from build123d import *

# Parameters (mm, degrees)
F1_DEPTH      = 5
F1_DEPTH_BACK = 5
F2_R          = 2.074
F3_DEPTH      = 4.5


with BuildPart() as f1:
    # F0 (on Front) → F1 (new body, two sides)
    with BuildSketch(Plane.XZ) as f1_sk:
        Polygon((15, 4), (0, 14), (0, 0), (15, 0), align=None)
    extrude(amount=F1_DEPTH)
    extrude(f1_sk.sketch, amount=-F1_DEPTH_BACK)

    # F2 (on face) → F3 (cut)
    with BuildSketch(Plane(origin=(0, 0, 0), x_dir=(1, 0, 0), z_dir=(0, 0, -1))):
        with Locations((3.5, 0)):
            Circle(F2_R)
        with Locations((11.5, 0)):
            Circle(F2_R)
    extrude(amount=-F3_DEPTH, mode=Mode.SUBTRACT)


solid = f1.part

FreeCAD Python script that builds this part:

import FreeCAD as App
import Part
import Sketcher
Q = App.Units.Quantity


def add_polygon(sketch, points):
    """Adds a closed chain of lines whose ends are joined by coincident constraints."""
    first, n = sketch.GeometryCount, len(points)
    for a, b in zip(points, points[1:] + points[:1]):
        sketch.addGeometry(Part.LineSegment(App.Vector(*a, 0), App.Vector(*b, 0)), False)
    for i in range(n):
        sketch.addConstraint(Sketcher.Constraint("Coincident", first + i, 2, first + (i + 1) % n, 1))

doc = App.newDocument("Part")
params = doc.addObject("Spreadsheet::Sheet", "Params")
for row, (alias, value) in enumerate([
    ("sketch1_width", "15 mm"),
    ("sketch1_height", "14 mm"),
    ("sketch1_height2", "4 mm"),
    ("pad1_length", "5 mm"),
    ("pad1_length2", "5 mm"),
    ("pocket1_length", "4.5 mm"),
], start=1):
    params.set(f"A{row}", alias)
    params.set(f"B{row}", "=" + value)
    params.setAlias(f"B{row}", alias)

body = doc.addObject("PartDesign::Body", "Body")

# Sketch on XZ plane
sketch1 = body.newObject("Sketcher::SketchObject", "Sketch")
sketch1.AttachmentSupport = (doc.getObject("XZ_Plane"), [""])
sketch1.MapMode = "FlatFace"
add_polygon(sketch1, [(15, 4), (0, 14), (0, 0), (15, 0)])  # lines 0-3
sketch1.addConstraint(Sketcher.Constraint("Vertical", 1))
sketch1.addConstraint(Sketcher.Constraint("Horizontal", 2))
sketch1.addConstraint(Sketcher.Constraint("Vertical", 3))
sketch1.addConstraint(Sketcher.Constraint("Coincident", 1, 2, -1, 1))
sketch1.addConstraint(Sketcher.Constraint("DistanceX", 2, 1, 2, 2, Q("15 mm")))
sketch1.addConstraint(Sketcher.Constraint("DistanceY", 1, 2, 1, 1, Q("14 mm")))
sketch1.addConstraint(Sketcher.Constraint("DistanceY", 3, 1, 3, 2, Q("4 mm")))
sketch1.setExpression("Constraints[8]", "Params.sketch1_width")
sketch1.setExpression("Constraints[9]", "Params.sketch1_height")
sketch1.setExpression("Constraints[10]", "Params.sketch1_height2")
pad1 = body.newObject("PartDesign::Pad", "Pad")
pad1.Profile = sketch1
pad1.Type = "TwoLengths"
pad1.setExpression("Length", "Params.pad1_length")
pad1.setExpression("Length2", "Params.pad1_length2")

# Sketch on XY plane
sketch2 = body.newObject("Sketcher::SketchObject", "Sketch001")
sketch2.AttachmentSupport = (doc.getObject("XY_Plane"), [""])
sketch2.MapMode = "FlatFace"
sketch2.addGeometry(Part.Circle(App.Vector(3.5, 0, 0), App.Vector(0, 0, 1), 2.074), False)
sketch2.addGeometry(Part.Circle(App.Vector(11.5, 0, 0), App.Vector(0, 0, 1), 2.074), False)
sketch2.addConstraint(Sketcher.Constraint("Equal", 0, 1))
sketch2.addConstraint(Sketcher.Constraint("PointOnObject", 0, 3, -1))
sketch2.addConstraint(Sketcher.Constraint("PointOnObject", 1, 3, -1))
sketch2.addConstraint(Sketcher.Constraint("Diameter", 0, Q("4.148 mm")))
sketch2.addConstraint(Sketcher.Constraint("DistanceX", 0, 3, 1, 3, Q("8 mm")))
sketch2.addConstraint(Sketcher.Constraint("DistanceX", -1, 1, 0, 3, Q("3.5 mm")))
pocket1 = body.newObject("PartDesign::Pocket", "Pocket")
pocket1.Profile = sketch2
pocket1.setExpression("Length", "Params.pocket1_length")
pocket1.Reversed = True

doc.recompute()
